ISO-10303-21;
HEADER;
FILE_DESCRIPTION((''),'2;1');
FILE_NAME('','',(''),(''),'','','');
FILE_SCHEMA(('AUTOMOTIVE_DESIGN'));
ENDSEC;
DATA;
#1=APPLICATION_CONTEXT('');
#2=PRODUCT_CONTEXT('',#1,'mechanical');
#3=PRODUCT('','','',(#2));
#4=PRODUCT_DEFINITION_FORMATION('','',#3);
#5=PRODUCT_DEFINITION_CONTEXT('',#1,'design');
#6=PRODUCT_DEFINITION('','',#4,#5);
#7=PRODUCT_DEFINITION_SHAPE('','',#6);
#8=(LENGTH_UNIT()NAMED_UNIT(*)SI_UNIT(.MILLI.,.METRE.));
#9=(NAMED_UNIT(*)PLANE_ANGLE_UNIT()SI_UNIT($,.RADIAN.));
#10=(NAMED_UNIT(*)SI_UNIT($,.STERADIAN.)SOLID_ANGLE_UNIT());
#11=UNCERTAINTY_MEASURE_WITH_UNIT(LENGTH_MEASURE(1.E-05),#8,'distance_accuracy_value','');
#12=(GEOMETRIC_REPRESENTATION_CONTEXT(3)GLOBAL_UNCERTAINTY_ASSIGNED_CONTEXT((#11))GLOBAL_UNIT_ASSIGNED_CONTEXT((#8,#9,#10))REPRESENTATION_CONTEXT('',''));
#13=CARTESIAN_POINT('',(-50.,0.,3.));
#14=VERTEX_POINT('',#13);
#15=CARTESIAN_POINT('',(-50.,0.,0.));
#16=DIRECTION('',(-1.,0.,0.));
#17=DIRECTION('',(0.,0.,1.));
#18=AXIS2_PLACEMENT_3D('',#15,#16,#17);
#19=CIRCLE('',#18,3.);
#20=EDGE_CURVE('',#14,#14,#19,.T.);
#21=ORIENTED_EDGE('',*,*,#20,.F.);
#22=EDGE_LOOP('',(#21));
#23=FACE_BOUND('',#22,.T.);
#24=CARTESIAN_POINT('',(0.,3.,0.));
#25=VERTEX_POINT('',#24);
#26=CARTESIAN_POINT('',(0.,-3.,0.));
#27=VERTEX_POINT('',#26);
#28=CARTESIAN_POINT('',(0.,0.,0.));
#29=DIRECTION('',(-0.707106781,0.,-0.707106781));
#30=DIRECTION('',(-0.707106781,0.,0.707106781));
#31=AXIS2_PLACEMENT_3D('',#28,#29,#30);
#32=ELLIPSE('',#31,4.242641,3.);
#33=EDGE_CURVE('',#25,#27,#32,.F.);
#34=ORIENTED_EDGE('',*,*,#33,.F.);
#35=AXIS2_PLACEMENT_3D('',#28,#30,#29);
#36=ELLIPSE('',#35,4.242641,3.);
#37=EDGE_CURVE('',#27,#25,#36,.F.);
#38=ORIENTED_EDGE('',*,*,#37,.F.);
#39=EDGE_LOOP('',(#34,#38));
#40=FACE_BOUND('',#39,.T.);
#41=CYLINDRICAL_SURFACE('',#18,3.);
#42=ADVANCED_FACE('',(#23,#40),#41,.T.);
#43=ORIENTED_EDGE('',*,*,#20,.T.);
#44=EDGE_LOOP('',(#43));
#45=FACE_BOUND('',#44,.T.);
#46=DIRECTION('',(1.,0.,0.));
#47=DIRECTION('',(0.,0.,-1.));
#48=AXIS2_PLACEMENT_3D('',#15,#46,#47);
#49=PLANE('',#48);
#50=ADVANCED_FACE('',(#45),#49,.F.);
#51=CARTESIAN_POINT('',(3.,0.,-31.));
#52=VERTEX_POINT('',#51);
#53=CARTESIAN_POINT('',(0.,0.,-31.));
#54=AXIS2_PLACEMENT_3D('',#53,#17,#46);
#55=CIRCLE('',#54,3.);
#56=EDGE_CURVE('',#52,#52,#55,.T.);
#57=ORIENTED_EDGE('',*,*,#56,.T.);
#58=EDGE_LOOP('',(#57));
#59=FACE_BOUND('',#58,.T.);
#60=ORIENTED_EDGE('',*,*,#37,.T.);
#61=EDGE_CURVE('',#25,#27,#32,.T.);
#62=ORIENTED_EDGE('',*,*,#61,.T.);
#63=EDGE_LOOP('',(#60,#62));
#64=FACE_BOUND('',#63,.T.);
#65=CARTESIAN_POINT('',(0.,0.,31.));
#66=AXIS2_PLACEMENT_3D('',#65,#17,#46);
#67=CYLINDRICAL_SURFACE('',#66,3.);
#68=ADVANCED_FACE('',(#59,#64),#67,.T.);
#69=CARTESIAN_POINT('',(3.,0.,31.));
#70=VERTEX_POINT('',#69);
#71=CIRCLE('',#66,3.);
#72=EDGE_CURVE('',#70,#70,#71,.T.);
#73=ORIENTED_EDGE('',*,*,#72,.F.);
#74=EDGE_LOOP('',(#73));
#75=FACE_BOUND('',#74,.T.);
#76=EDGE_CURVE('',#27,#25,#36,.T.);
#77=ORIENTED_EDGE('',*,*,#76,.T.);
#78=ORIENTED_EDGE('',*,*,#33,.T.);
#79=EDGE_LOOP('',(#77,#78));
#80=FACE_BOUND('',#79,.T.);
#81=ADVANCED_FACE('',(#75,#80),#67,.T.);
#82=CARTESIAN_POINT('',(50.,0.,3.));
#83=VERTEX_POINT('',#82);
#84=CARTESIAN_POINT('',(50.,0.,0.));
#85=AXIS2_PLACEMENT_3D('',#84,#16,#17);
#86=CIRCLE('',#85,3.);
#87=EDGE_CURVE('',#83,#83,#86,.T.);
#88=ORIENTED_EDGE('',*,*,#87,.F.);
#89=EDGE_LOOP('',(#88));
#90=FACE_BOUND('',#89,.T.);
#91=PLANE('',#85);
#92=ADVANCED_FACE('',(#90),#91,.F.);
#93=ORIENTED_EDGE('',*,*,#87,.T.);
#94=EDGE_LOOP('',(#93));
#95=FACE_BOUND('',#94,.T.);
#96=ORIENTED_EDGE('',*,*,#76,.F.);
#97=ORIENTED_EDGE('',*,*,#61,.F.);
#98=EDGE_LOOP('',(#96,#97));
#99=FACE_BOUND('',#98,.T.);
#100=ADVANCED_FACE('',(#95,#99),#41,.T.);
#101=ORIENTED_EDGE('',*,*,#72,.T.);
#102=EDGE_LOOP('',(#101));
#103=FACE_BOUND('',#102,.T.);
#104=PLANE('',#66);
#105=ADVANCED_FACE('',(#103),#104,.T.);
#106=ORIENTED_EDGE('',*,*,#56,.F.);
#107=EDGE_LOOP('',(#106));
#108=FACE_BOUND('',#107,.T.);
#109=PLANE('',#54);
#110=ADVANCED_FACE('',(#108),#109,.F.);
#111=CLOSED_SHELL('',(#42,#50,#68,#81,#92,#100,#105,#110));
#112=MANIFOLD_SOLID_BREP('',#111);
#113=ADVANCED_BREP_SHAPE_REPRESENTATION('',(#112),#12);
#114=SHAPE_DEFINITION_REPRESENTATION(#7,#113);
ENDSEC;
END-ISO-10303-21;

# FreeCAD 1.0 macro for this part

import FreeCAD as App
import Part
import Sketcher
from FreeCAD import Vector


def add_polygon(sketch, points):
    """Adds a closed chain of lines whose ends are joined by coincident constraints."""
    first, n = sketch.GeometryCount, len(points)
    for a, b in zip(points, points[1:] + points[:1]):
        sketch.addGeometry(Part.LineSegment(App.Vector(*a, 0), App.Vector(*b, 0)), False)
    for i in range(n):
        sketch.addConstraint(Sketcher.Constraint("Coincident", first + i, 2, first + (i + 1) % n, 1))

doc = App.newDocument("Part")
params = doc.addObject("Spreadsheet::Sheet", "Params")
for row, (alias, value) in enumerate([
    ("sketch1_width", "100 mm"),
    ("sketch1_height", "3 mm"),
    ("revolution_angle", "360 deg"),
    ("sketch2_width", "3 mm"),
    ("sketch2_height", "62 mm"),
    ("revolution2_angle", "360 deg"),
], start=1):
    params.set(f"A{row}", alias)
    params.set(f"B{row}", "=" + value)
    params.setAlias(f"B{row}", alias)

body = doc.addObject("PartDesign::Body", "Body")

sketch1 = doc.addObject("Sketcher::SketchObject", "Sketch")
body.addObject(sketch1)
sketch1.AttachmentSupport = (doc.XY_Plane, [""])
sketch1.MapMode = "FlatFace"
add_polygon(sketch1, [(-50, 3), (-50, 0), (50, 0), (50, 3)])
sketch1.addConstraint(Sketcher.Constraint("Vertical", 0))
sketch1.addConstraint(Sketcher.Constraint("Horizontal", 1))
sketch1.addConstraint(Sketcher.Constraint("Vertical", 2))
sketch1.addConstraint(Sketcher.Constraint("Horizontal", 3))
sketch1.addConstraint(Sketcher.Constraint("Symmetric", 0, 2, 1, 2, -1, 1))
sketch1.addConstraint(Sketcher.Constraint("DistanceX", 1, 1, 1, 2, 100.0))
sketch1.addConstraint(Sketcher.Constraint("DistanceY", 0, 2, 0, 1, 3.0))
sketch1.setExpression("Constraints[9]", "Params.sketch1_width")
sketch1.setExpression("Constraints[10]", "Params.sketch1_height")
revolution = doc.addObject("PartDesign::Revolution", "Revolution")
body.addObject(revolution)
revolution.Profile = sketch1
revolution.ReferenceAxis = (sketch1, ["H_Axis"])
revolution.setExpression("Angle", "Params.revolution_angle")

sketch2 = doc.addObject("Sketcher::SketchObject", "Sketch001")
body.addObject(sketch2)
sketch2.AttachmentSupport = (doc.YZ_Plane, [""])
sketch2.MapMode = "FlatFace"
add_polygon(sketch2, [(3, 31), (0, 31), (0, -31), (3, -31)])
sketch2.addConstraint(Sketcher.Constraint("Horizontal", 0))
sketch2.addConstraint(Sketcher.Constraint("Vertical", 1))
sketch2.addConstraint(Sketcher.Constraint("Horizontal", 2))
sketch2.addConstraint(Sketcher.Constraint("Vertical", 3))
sketch2.addConstraint(Sketcher.Constraint("Symmetric", 0, 2, 1, 2, -1, 1))
sketch2.addConstraint(Sketcher.Constraint("DistanceX", 0, 2, 0, 1, 3.0))
sketch2.addConstraint(Sketcher.Constraint("DistanceY", 1, 2, 1, 1, 62.0))
sketch2.setExpression("Constraints[9]", "Params.sketch2_width")
sketch2.setExpression("Constraints[10]", "Params.sketch2_height")
revolution2 = doc.addObject("PartDesign::Revolution", "Revolution001")
body.addObject(revolution2)
revolution2.Profile = sketch2
revolution2.ReferenceAxis = (sketch2, ["V_Axis"])
revolution2.setExpression("Angle", "Params.revolution2_angle")

doc.recompute()
